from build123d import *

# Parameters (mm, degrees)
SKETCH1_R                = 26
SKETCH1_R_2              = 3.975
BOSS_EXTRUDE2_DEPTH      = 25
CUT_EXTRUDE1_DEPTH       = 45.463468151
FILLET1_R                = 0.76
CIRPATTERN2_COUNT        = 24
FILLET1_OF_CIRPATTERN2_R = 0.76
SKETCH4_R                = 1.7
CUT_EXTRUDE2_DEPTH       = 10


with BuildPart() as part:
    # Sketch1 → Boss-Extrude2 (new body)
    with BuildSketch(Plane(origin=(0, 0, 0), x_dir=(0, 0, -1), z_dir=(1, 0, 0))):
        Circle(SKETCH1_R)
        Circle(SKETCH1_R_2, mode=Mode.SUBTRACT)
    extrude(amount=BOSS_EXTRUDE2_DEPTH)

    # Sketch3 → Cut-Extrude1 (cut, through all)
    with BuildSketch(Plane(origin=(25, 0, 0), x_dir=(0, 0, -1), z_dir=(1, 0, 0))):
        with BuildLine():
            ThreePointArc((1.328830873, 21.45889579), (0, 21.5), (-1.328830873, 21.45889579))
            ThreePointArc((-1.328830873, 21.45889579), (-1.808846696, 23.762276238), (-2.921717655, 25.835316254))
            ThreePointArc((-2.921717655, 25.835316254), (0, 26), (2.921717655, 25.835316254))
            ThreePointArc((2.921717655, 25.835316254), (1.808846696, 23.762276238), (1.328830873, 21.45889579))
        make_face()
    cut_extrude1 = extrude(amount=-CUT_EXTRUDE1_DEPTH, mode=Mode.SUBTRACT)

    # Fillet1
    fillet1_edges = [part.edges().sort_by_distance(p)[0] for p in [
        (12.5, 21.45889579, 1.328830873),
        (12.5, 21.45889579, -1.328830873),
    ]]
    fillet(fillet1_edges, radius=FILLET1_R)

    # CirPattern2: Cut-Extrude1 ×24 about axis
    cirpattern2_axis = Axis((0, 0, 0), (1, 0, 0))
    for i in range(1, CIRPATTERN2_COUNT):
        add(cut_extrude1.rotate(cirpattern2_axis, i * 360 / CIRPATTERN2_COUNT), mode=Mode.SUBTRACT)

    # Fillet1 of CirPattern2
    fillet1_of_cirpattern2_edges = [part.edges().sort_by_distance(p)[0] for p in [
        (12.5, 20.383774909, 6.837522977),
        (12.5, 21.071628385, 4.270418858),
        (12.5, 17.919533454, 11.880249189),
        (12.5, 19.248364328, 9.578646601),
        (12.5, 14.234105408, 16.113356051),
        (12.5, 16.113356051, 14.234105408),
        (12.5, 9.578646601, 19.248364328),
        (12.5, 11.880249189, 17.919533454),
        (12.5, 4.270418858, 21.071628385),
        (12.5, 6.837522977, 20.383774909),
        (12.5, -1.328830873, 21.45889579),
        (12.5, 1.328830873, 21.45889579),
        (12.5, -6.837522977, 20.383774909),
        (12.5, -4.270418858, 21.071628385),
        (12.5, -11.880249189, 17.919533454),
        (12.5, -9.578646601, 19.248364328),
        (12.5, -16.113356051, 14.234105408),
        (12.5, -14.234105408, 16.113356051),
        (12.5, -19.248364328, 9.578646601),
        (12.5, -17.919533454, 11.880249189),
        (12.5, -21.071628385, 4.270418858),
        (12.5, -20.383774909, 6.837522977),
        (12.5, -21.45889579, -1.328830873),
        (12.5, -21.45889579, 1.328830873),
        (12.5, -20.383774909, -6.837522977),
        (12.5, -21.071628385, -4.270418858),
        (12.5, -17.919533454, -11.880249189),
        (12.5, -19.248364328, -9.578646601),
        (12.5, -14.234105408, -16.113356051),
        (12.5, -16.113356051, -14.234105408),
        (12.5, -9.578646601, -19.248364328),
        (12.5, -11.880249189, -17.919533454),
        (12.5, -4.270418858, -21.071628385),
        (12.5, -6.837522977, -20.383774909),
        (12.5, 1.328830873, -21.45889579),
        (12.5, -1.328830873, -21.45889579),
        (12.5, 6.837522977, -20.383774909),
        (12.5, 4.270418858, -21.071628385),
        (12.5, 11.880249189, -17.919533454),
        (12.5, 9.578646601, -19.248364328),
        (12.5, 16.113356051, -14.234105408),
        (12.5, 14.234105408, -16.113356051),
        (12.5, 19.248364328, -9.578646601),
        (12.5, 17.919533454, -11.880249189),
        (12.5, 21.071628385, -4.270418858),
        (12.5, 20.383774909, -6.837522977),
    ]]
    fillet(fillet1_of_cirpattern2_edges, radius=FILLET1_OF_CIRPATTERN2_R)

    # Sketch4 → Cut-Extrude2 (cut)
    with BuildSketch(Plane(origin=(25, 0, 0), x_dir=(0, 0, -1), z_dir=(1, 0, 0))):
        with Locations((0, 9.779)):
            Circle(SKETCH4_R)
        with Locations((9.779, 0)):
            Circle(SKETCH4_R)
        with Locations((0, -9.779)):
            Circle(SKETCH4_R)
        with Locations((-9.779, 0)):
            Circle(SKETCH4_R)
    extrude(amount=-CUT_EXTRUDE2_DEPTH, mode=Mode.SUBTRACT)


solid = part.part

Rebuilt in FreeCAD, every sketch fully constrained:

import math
import FreeCAD as App
import Part
import Sketcher

V = App.Vector


def edges_at(feature, points):
    """Names of the edges that pass closest to the given points."""
    edges = feature.Shape.Edges
    near = lambda p: min(range(len(edges)), key=lambda i: edges[i].distToShape(Part.Vertex(*p))[0])
    return sorted({f"Edge{near(p) + 1}" for p in points})

doc = App.newDocument("Part")
body = doc.addObject("PartDesign::Body", "Body")

# Sketch on YZ plane
sketch1 = body.newObject("Sketcher::SketchObject", "Sketch")
sketch1.AttachmentSupport = (doc.getObject("YZ_Plane"), [""])
sketch1.MapMode = "FlatFace"
sketch1.addGeometry(Part.Circle(V(0, 0, 0), V(0, 0, 1), 26), False)
sketch1.addGeometry(Part.Circle(V(0, 0, 0), V(0, 0, 1), 4), False)
sketch1.addConstraint(Sketcher.Constraint("Coincident", 0, 3, -1, 1))
sketch1.addConstraint(Sketcher.Constraint("Coincident", 1, 3, -1, 1))
sketch1.addConstraint(Sketcher.Constraint("Diameter", 0, 52.0))
sketch1.addConstraint(Sketcher.Constraint("Diameter", 1, 7.95))
pad1 = body.newObject("PartDesign::Pad", "Pad")
pad1.Profile = sketch1
pad1.Length = 25

# Sketch on YZ plane
sketch2 = body.newObject("Sketcher::SketchObject", "Sketch001")
sketch2.AttachmentSupport = (doc.getObject("YZ_Plane"), [""])
sketch2.MapMode = "FlatFace"
sketch2.AttachmentOffset = App.Placement(V(0, 0, 25), App.Rotation())
sketch2.addGeometry(Part.ArcOfCircle(Part.Circle(V(0, 0, 0), V(0, 0, 1), 21.5), math.radians(-3.54), math.radians(3.54)), False)
sketch2.addGeometry(Part.ArcOfCircle(Part.Circle(V(21, -9.5, 0), V(0, 0, 1), 8.2), math.radians(54), math.radians(86)), False)
sketch2.addGeometry(Part.ArcOfCircle(Part.Circle(V(0, 0, 0), V(0, 0, 1), 26), math.radians(-6.45), math.radians(6.45)), False)
sketch2.addGeometry(Part.ArcOfCircle(Part.Circle(V(21, 9.5, 0), V(0, 0, 1), 8.2), math.radians(-86), math.radians(-54)), False)
sketch2.addConstraint(Sketcher.Constraint("Coincident", 0, 1, 1, 2))
sketch2.addConstraint(Sketcher.Constraint("Coincident", 1, 1, 2, 1))
sketch2.addConstraint(Sketcher.Constraint("Coincident", 2, 2, 3, 2))
sketch2.addConstraint(Sketcher.Constraint("Coincident", 3, 1, 0, 2))
sketch2.addConstraint(Sketcher.Constraint("Coincident", 0, 3, -1, 1))
sketch2.addConstraint(Sketcher.Constraint("Coincident", 2, 3, -1, 1))
sketch2.addConstraint(Sketcher.Constraint("Equal", 1, 3))
sketch2.addConstraint(Sketcher.Constraint("Symmetric", 1, 3, 3, 3, -1))
sketch2.addConstraint(Sketcher.Constraint("Radius", 2, 26.0))
sketch2.addConstraint(Sketcher.Constraint("Radius", 0, 21.5))
sketch2.addConstraint(Sketcher.Constraint("Radius", 1, 8.220075))
sketch2.addConstraint(Sketcher.Constraint("DistanceY", 1, 3, -1, 1, 9.53319))
sketch2.addConstraint(Sketcher.Constraint("DistanceY", -1, 1, 3, 1, 1.328831))
pocket1 = body.newObject("PartDesign::Pocket", "Pocket")
pocket1.Profile = sketch2
pocket1.Type = "ThroughAll"
doc.recompute()

fillet = body.newObject("PartDesign::Fillet", "Fillet")
fillet.Base = (pocket1, edges_at(pocket1, [(12.5, 21.459, 1.329), (12.5, 21.459, -1.329)]))
fillet.Radius = 0.76
doc.recompute()

polarpattern = body.newObject("PartDesign::PolarPattern", "PolarPattern")
polarpattern.Originals = [pocket1]
polarpattern.Axis = (doc.getObject("X_Axis"), [""])
polarpattern.Angle = 360
polarpattern.Occurrences = 24
body.Tip = polarpattern
doc.recompute()

fillet2 = body.newObject("PartDesign::Fillet", "Fillet001")
fillet2.Base = (polarpattern, edges_at(polarpattern, [
    (12.5, 20.384, 6.838),
    (12.5, 21.072, 4.27),
    (12.5, 17.92, 11.88),
    (12.5, 19.248, 9.579),
    (12.5, 14.234, 16.113),
    (12.5, 16.113, 14.234),
    (12.5, 9.579, 19.248),
    (12.5, 11.88, 17.92),
    (12.5, 4.27, 21.072),
    (12.5, 6.838, 20.384),
    (12.5, -1.329, 21.459),
    (12.5, 1.329, 21.459),
    (12.5, -6.838, 20.384),
    (12.5, -4.27, 21.072),
    (12.5, -11.88, 17.92),
    (12.5, -9.579, 19.248),
    (12.5, -16.113, 14.234),
    (12.5, -14.234, 16.113),
    (12.5, -19.248, 9.579),
    (12.5, -17.92, 11.88),
    (12.5, -21.072, 4.27),
    (12.5, -20.384, 6.838),
    (12.5, -21.459, -1.329),
    (12.5, -21.459, 1.329),
    (12.5, -20.384, -6.838),
    (12.5, -21.072, -4.27),
    (12.5, -17.92, -11.88),
    (12.5, -19.248, -9.579),
    (12.5, -14.234, -16.113),
    (12.5, -16.113, -14.234),
    (12.5, -9.579, -19.248),
    (12.5, -11.88, -17.92),
    (12.5, -4.27, -21.072),
    (12.5, -6.838, -20.384),
    (12.5, 1.329, -21.459),
    (12.5, -1.329, -21.459),
    (12.5, 6.838, -20.384),
    (12.5, 4.27, -21.072),
    (12.5, 11.88, -17.92),
    (12.5, 9.579, -19.248),
    (12.5, 16.113, -14.234),
    (12.5, 14.234, -16.113),
    (12.5, 19.248, -9.579),
    (12.5, 17.92, -11.88),
    (12.5, 21.072, -4.27),
    (12.5, 20.384, -6.838),
]))
fillet2.Radius = 0.76

# Sketch on YZ plane
sketch3 = body.newObject("Sketcher::SketchObject", "Sketch002")
sketch3.AttachmentSupport = (doc.getObject("YZ_Plane"), [""])
sketch3.MapMode = "FlatFace"
sketch3.AttachmentOffset = App.Placement(V(0, 0, 25), App.Rotation())
sketch3.addGeometry(Part.Circle(V(9.8, 0, 0), V(0, 0, 1), 1.7), False)
sketch3.addGeometry(Part.Circle(V(0, -9.8, 0), V(0, 0, 1), 1.7), False)
sketch3.addGeometry(Part.Circle(V(-9.8, 0, 0), V(0, 0, 1), 1.7), False)
sketch3.addGeometry(Part.Circle(V(0, 9.8, 0), V(0, 0, 1), 1.7), False)
sketch3.addConstraint(Sketcher.Constraint("Equal", 0, 1))
sketch3.addConstraint(Sketcher.Constraint("Equal", 1, 2))
sketch3.addConstraint(Sketcher.Constraint("Equal", 2, 3))
sketch3.addConstraint(Sketcher.Constraint("Symmetric", 0, 3, 2, 3, -1, 1))
sketch3.addConstraint(Sketcher.Constraint("Symmetric", 1, 3, 3, 3, -1, 1))
sketch3.addConstraint(Sketcher.Constraint("PointOnObject", 0, 3, -1))
sketch3.addConstraint(Sketcher.Constraint("PointOnObject", 1, 3, -2))
sketch3.addConstraint(Sketcher.Constraint("Diameter", 0, 3.4))
sketch3.addConstraint(Sketcher.Constraint("DistanceX", -1, 1, 0, 3, 9.779))
sketch3.addConstraint(Sketcher.Constraint("DistanceY", 1, 3, -1, 1, 9.779))
pocket2 = body.newObject("PartDesign::Pocket", "Pocket001")
pocket2.Profile = sketch3
pocket2.Length = 10

doc.recompute()
